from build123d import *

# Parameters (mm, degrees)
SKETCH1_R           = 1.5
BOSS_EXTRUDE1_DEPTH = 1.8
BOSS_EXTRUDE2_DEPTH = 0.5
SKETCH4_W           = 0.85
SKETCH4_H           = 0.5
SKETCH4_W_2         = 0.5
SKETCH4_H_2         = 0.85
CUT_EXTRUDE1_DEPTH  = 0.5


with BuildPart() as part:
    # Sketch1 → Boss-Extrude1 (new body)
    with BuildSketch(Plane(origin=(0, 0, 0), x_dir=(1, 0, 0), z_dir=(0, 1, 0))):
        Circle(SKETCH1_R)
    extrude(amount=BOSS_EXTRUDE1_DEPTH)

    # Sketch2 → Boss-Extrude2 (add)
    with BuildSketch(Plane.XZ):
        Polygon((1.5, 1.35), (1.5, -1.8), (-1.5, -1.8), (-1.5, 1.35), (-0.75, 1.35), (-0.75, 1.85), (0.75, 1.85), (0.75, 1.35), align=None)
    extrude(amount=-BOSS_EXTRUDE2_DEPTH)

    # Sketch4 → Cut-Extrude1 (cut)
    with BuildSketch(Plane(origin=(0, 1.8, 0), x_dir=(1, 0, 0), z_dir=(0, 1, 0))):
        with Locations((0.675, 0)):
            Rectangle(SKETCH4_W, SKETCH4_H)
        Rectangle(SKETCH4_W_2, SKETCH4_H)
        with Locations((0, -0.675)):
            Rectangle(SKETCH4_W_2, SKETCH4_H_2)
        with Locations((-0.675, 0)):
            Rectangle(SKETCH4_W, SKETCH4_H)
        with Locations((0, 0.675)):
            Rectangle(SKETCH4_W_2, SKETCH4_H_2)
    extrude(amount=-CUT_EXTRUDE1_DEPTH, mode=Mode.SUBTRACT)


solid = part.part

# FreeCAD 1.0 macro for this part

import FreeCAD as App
import Part
import Sketcher


def add_polygon(sketch, points):
    """Adds a closed chain of lines whose ends are joined by coincident constraints."""
    first, n = sketch.GeometryCount, len(points)
    for a, b in zip(points, points[1:] + points[:1]):
        sketch.addGeometry(Part.LineSegment(App.Vector(*a, 0), App.Vector(*b, 0)), False)
    for i in range(n):
        sketch.addConstraint(Sketcher.Constraint("Coincident", first + i, 2, first + (i + 1) % n, 1))

doc = App.newDocument("Part")
body = doc.addObject("PartDesign::Body", "Body")

# Sketch on XZ plane
sketch1 = body.newObject("Sketcher::SketchObject", "Sketch")
sketch1.AttachmentSupport = (doc.getObject("XZ_Plane"), [""])
sketch1.MapMode = "FlatFace"
sketch1.addGeometry(Part.Circle(App.Vector(0, 0, 0), App.Vector(0, 0, 1), 1.5), False)
sketch1.addConstraint([
    Sketcher.Constraint("Coincident", 0, 3, -1, 1),
    Sketcher.Constraint("Diameter", 0, 3.0),
])
pad1 = body.newObject("PartDesign::Pad", "Pad")
pad1.Profile = sketch1
pad1.Length = 1.8
pad1.Reversed = True

# Sketch on XZ plane
sketch2 = body.newObject("Sketcher::SketchObject", "Sketch001")
sketch2.AttachmentSupport = (doc.getObject("XZ_Plane"), [""])
sketch2.MapMode = "FlatFace"
add_polygon(sketch2, [(1.5, -1.8), (1.5, 1.4), (0.8, 1.4), (0.8, 1.9), (-0.8, 1.9), (-0.8, 1.4), (-1.5, 1.4), (-1.5, -1.8)])  # lines 0-7
sketch2.addConstraint([
    Sketcher.Constraint("Vertical", 0),
    Sketcher.Constraint("Horizontal", 1),
    Sketcher.Constraint("Vertical", 2),
    Sketcher.Constraint("Horizontal", 3),
    Sketcher.Constraint("Vertical", 4),
    Sketcher.Constraint("Horizontal", 5),
    Sketcher.Constraint("Vertical", 6),
    Sketcher.Constraint("Horizontal", 7),
    Sketcher.Constraint("Symmetric", 1, 2, 4, 2, -2),
    Sketcher.Constraint("Equal", 1, 5),
    Sketcher.Constraint("DistanceX", 7, 1, 7, 2, 3.0),
    Sketcher.Constraint("DistanceX", 3, 2, 3, 1, 1.5),
    Sketcher.Constraint("DistanceY", 2, 1, 2, 2, 0.5),
    Sketcher.Constraint("DistanceY", 0, 1, 0, 2, 3.15),
    Sketcher.Constraint("DistanceY", 6, 2, -1, 1, 1.8),
])
pad2 = body.newObject("PartDesign::Pad", "Pad001")
pad2.Profile = sketch2
pad2.Length = 0.5
pad2.Reversed = True

# Sketch on XZ plane
sketch3 = body.newObject("Sketcher::SketchObject", "Sketch002")
sketch3.AttachmentSupport = (doc.getObject("XZ_Plane"), [""])
sketch3.MapMode = "FlatFace"
sketch3.AttachmentOffset = App.Placement(App.Vector(0, 0, -1.8), App.Rotation())
add_polygon(sketch3, [(1.1, 0.2), (1.1, -0.2), (0.2, -0.2), (0.2, -1.1), (-0.2, -1.1), (-0.2, -0.2), (-1.1, -0.2), (-1.1, 0.2), (-0.2, 0.2), (-0.2, 1.1), (0.2, 1.1), (0.2, 0.2)])  # lines 0-11
sketch3.addConstraint([
    Sketcher.Constraint("Vertical", 0),
    Sketcher.Constraint("Horizontal", 1),
    Sketcher.Constraint("Vertical", 2),
    Sketcher.Constraint("Horizontal", 3),
    Sketcher.Constraint("Vertical", 4),
    Sketcher.Constraint("Horizontal", 5),
    Sketcher.Constraint("Vertical", 6),
    Sketcher.Constraint("Horizontal", 7),
    Sketcher.Constraint("Vertical", 8),
    Sketcher.Constraint("Horizontal", 9),
    Sketcher.Constraint("Vertical", 10),
    Sketcher.Constraint("Horizontal", 11),
    Sketcher.Constraint("Symmetric", 0, 2, 6, 2, -1, 1),
    Sketcher.Constraint("Symmetric", 2, 2, 8, 2, -1, 1),
    Sketcher.Constraint("Symmetric", 4, 2, 10, 2, -1, 1),
    Sketcher.Constraint("Symmetric", 1, 2, 4, 2, -2),
    Sketcher.Constraint("Equal", 9, 0),
    Sketcher.Constraint("Equal", 11, 2),
    Sketcher.Constraint("DistanceX", 3, 2, 3, 1, 0.5),
    Sketcher.Constraint("DistanceX", 1, 2, 1, 1, 0.85),
])
pocket1 = body.newObject("PartDesign::Pocket", "Pocket")
pocket1.Profile = sketch3
pocket1.Length = 0.5
pocket1.Reversed = True

doc.recompute()
